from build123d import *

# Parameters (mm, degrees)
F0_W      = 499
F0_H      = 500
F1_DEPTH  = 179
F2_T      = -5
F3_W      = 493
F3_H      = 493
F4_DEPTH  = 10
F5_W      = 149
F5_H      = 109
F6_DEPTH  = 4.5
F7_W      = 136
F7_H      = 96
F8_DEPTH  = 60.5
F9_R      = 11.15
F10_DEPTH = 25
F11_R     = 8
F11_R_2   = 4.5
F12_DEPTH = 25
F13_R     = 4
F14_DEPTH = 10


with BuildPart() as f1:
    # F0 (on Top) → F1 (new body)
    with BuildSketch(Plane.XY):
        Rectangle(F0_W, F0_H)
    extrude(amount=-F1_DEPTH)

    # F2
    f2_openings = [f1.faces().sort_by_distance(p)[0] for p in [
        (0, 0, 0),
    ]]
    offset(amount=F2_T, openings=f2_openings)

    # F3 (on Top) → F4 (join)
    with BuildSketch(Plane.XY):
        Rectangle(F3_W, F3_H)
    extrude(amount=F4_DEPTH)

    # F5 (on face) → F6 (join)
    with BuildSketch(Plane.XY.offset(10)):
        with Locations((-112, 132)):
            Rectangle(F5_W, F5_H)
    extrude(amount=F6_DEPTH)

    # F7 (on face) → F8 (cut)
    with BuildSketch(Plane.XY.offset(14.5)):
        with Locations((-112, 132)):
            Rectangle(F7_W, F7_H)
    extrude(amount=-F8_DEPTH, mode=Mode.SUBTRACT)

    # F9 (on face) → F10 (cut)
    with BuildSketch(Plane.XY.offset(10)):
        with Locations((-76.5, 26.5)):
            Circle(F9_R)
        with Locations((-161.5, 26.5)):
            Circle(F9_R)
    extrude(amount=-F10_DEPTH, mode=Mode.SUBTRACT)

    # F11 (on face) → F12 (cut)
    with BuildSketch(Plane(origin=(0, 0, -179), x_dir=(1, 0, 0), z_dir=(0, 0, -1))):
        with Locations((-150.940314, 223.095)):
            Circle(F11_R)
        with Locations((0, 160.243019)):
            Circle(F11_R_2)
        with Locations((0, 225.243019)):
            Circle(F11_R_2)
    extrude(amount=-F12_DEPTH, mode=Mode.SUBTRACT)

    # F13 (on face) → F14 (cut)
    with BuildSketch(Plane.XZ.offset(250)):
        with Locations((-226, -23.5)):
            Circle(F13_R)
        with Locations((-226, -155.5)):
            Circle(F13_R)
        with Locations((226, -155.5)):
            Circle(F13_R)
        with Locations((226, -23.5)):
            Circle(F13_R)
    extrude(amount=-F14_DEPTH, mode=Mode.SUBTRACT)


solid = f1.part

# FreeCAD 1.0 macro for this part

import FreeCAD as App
import Part
import Sketcher

V = App.Vector
Q = App.Units.Quantity


def faces_at(feature, points):
    """Names of the faces that lie closest to the given points."""
    faces = feature.Shape.Faces
    near = lambda p: min(range(len(faces)), key=lambda i: faces[i].distToShape(Part.Vertex(*p))[0])
    return sorted({f"Face{near(p) + 1}" for p in points})

doc = App.newDocument("Part")
body = doc.addObject("PartDesign::Body", "Body")

# Sketch on XY plane
sketch1 = body.newObject("Sketcher::SketchObject", "Sketch")
sketch1.AttachmentSupport = (doc.getObject("XY_Plane"), [""])
sketch1.MapMode = "FlatFace"
sketch1.addGeometry(Part.LineSegment(V(-250, 250, 0), V(-250, -250, 0)), False)
sketch1.addGeometry(Part.LineSegment(V(-250, -250, 0), V(250, -250, 0)), False)
sketch1.addGeometry(Part.LineSegment(V(250, -250, 0), V(250, 250, 0)), False)
sketch1.addGeometry(Part.LineSegment(V(250, 250, 0), V(-250, 250, 0)), False)
sketch1.addConstraint(Sketcher.Constraint("Coincident", 0, 2, 1, 1))
sketch1.addConstraint(Sketcher.Constraint("Coincident", 1, 2, 2, 1))
sketch1.addConstraint(Sketcher.Constraint("Coincident", 2, 2, 3, 1))
sketch1.addConstraint(Sketcher.Constraint("Coincident", 3, 2, 0, 1))
sketch1.addConstraint(Sketcher.Constraint("Vertical", 0))
sketch1.addConstraint(Sketcher.Constraint("Horizontal", 1))
sketch1.addConstraint(Sketcher.Constraint("Vertical", 2))
sketch1.addConstraint(Sketcher.Constraint("Horizontal", 3))
sketch1.addConstraint(Sketcher.Constraint("Symmetric", 0, 2, 2, 2, -1, 1))
sketch1.addConstraint(Sketcher.Constraint("DistanceX", 1, 1, 1, 2, Q("499 mm")))
sketch1.addConstraint(Sketcher.Constraint("DistanceY", 0, 2, 0, 1, Q("500 mm")))
pad1 = body.newObject("PartDesign::Pad", "Pad")
pad1.Profile = sketch1
pad1.Length = 179
pad1.Reversed = True
doc.recompute()

thickness = body.newObject("PartDesign::Thickness", "Thickness")
thickness.Base = (pad1, faces_at(pad1, [(0, 0, 0)]))
thickness.Value = 5
thickness.Reversed = True
thickness.Join = "Arc"

# Sketch on XY plane
sketch2 = body.newObject("Sketcher::SketchObject", "Sketch001")
sketch2.AttachmentSupport = (doc.getObject("XY_Plane"), [""])
sketch2.MapMode = "FlatFace"
sketch2.addGeometry(Part.LineSegment(V(-246, 246, 0), V(-246, -246, 0)), False)
sketch2.addGeometry(Part.LineSegment(V(-246, -246, 0), V(246, -246, 0)), False)
sketch2.addGeometry(Part.LineSegment(V(246, -246, 0), V(246, 246, 0)), False)
sketch2.addGeometry(Part.LineSegment(V(246, 246, 0), V(-246, 246, 0)), False)
sketch2.addConstraint(Sketcher.Constraint("Coincident", 0, 2, 1, 1))
sketch2.addConstraint(Sketcher.Constraint("Coincident", 1, 2, 2, 1))
sketch2.addConstraint(Sketcher.Constraint("Coincident", 2, 2, 3, 1))
sketch2.addConstraint(Sketcher.Constraint("Coincident", 3, 2, 0, 1))
sketch2.addConstraint(Sketcher.Constraint("Vertical", 0))
sketch2.addConstraint(Sketcher.Constraint("Horizontal", 1))
sketch2.addConstraint(Sketcher.Constraint("Vertical", 2))
sketch2.addConstraint(Sketcher.Constraint("Horizontal", 3))
sketch2.addConstraint(Sketcher.Constraint("Symmetric", 0, 2, 2, 2, -1, 1))
sketch2.addConstraint(Sketcher.Constraint("Equal", 3, 0))
sketch2.addConstraint(Sketcher.Constraint("DistanceX", 1, 1, 1, 2, Q("493 mm")))
pad2 = body.newObject("PartDesign::Pad", "Pad001")
pad2.Profile = sketch2
pad2.Length = 10

# Sketch on XY plane
sketch3 = body.newObject("Sketcher::SketchObject", "Sketch002")
sketch3.AttachmentSupport = (doc.getObject("XY_Plane"), [""])
sketch3.MapMode = "FlatFace"
sketch3.AttachmentOffset = App.Placement(V(0, 0, 10), App.Rotation())
sketch3.addGeometry(Part.LineSegment(V(-186, 186, 0), V(-186, 78, 0)), False)
sketch3.addGeometry(Part.LineSegment(V(-186, 78, 0), V(-38, 78, 0)), False)
sketch3.addGeometry(Part.LineSegment(V(-38, 78, 0), V(-38, 186, 0)), False)
sketch3.addGeometry(Part.LineSegment(V(-38, 186, 0), V(-186, 186, 0)), False)
sketch3.addConstraint(Sketcher.Constraint("Coincident", 0, 2, 1, 1))
sketch3.addConstraint(Sketcher.Constraint("Coincident", 1, 2, 2, 1))
sketch3.addConstraint(Sketcher.Constraint("Coincident", 2, 2, 3, 1))
sketch3.addConstraint(Sketcher.Constraint("Coincident", 3, 2, 0, 1))
sketch3.addConstraint(Sketcher.Constraint("Vertical", 0))
sketch3.addConstraint(Sketcher.Constraint("Horizontal", 1))
sketch3.addConstraint(Sketcher.Constraint("Vertical", 2))
sketch3.addConstraint(Sketcher.Constraint("Horizontal", 3))
sketch3.addConstraint(Sketcher.Constraint("DistanceX", 1, 1, 1, 2, Q("149 mm")))
sketch3.addConstraint(Sketcher.Constraint("DistanceY", 0, 2, 0, 1, Q("109 mm")))
sketch3.addConstraint(Sketcher.Constraint("DistanceX", 0, 2, -1, 1, Q("186.5 mm")))
sketch3.addConstraint(Sketcher.Constraint("DistanceY", -1, 1, 0, 2, Q("77.5 mm")))
pad3 = body.newObject("PartDesign::Pad", "Pad002")
pad3.Profile = sketch3
pad3.Length = 4.5

# Sketch on XY plane
sketch4 = body.newObject("Sketcher::SketchObject", "Sketch003")
sketch4.AttachmentSupport = (doc.getObject("XY_Plane"), [""])
sketch4.MapMode = "FlatFace"
sketch4.AttachmentOffset = App.Placement(V(0, 0, 14.5), App.Rotation())
sketch4.addGeometry(Part.LineSegment(V(-180, 180, 0), V(-180, 84, 0)), False)
sketch4.addGeometry(Part.LineSegment(V(-180, 84, 0), V(-44, 84, 0)), False)
sketch4.addGeometry(Part.LineSegment(V(-44, 84, 0), V(-44, 180, 0)), False)
sketch4.addGeometry(Part.LineSegment(V(-44, 180, 0), V(-180, 180, 0)), False)
sketch4.addConstraint(Sketcher.Constraint("Coincident", 0, 2, 1, 1))
sketch4.addConstraint(Sketcher.Constraint("Coincident", 1, 2, 2, 1))
sketch4.addConstraint(Sketcher.Constraint("Coincident", 2, 2, 3, 1))
sketch4.addConstraint(Sketcher.Constraint("Coincident", 3, 2, 0, 1))
sketch4.addConstraint(Sketcher.Constraint("Vertical", 0))
sketch4.addConstraint(Sketcher.Constraint("Horizontal", 1))
sketch4.addConstraint(Sketcher.Constraint("Vertical", 2))
sketch4.addConstraint(Sketcher.Constraint("Horizontal", 3))
sketch4.addConstraint(Sketcher.Constraint("DistanceX", 1, 1, 1, 2, Q("136 mm")))
sketch4.addConstraint(Sketcher.Constraint("DistanceY", 0, 2, 0, 1, Q("96 mm")))
sketch4.addConstraint(Sketcher.Constraint("DistanceX", 0, 2, -1, 1, Q("180 mm")))
sketch4.addConstraint(Sketcher.Constraint("DistanceY", -1, 1, 0, 2, Q("84 mm")))
pocket1 = body.newObject("PartDesign::Pocket", "Pocket")
pocket1.Profile = sketch4
pocket1.Length = 60.5

# Sketch on XY plane
sketch5 = body.newObject("Sketcher::SketchObject", "Sketch004")
sketch5.AttachmentSupport = (doc.getObject("XY_Plane"), [""])
sketch5.MapMode = "FlatFace"
sketch5.AttachmentOffset = App.Placement(V(0, 0, 10), App.Rotation())
sketch5.addGeometry(Part.Circle(V(-76, 26, 0), V(0, 0, 1), 11), False)
sketch5.addGeometry(Part.Circle(V(-162, 26, 0), V(0, 0, 1), 11), False)
sketch5.addConstraint(Sketcher.Constraint("Equal", 0, 1))
sketch5.addConstraint(Sketcher.Constraint("Horizontal", 0, 3, 1, 3))
sketch5.addConstraint(Sketcher.Constraint("Diameter", 0, Q("22.3 mm")))
sketch5.addConstraint(Sketcher.Constraint("DistanceX", 1, 3, 0, 3, Q("85 mm")))
sketch5.addConstraint(Sketcher.Constraint("DistanceX", 0, 3, -1, 1, Q("76.5 mm")))
sketch5.addConstraint(Sketcher.Constraint("DistanceY", -1, 1, 0, 3, Q("26.5 mm")))
pocket2 = body.newObject("PartDesign::Pocket", "Pocket001")
pocket2.Profile = sketch5
pocket2.Length = 25

# Sketch on XY plane
sketch6 = body.newObject("Sketcher::SketchObject", "Sketch005")
sketch6.AttachmentSupport = (doc.getObject("XY_Plane"), [""])
sketch6.MapMode = "FlatFace"
sketch6.AttachmentOffset = App.Placement(V(0, 0, -179), App.Rotation())
sketch6.addGeometry(Part.Circle(V(-150.9, -223.1, 0), V(0, 0, 1), 8), False)
sketch6.addGeometry(Part.Circle(V(0, -160.2, 0), V(0, 0, 1), 4.5), False)
sketch6.addGeometry(Part.Circle(V(0, -225.2, 0), V(0, 0, 1), 4.5), False)
sketch6.addConstraint(Sketcher.Constraint("Equal", 1, 2))
sketch6.addConstraint(Sketcher.Constraint("PointOnObject", 1, 3, -2))
sketch6.addConstraint(Sketcher.Constraint("PointOnObject", 2, 3, -2))
sketch6.addConstraint(Sketcher.Constraint("Diameter", 0, Q("16 mm")))
sketch6.addConstraint(Sketcher.Constraint("Diameter", 1, Q("9 mm")))
sketch6.addConstraint(Sketcher.Constraint("DistanceY", 2, 3, 1, 3, Q("65 mm")))
sketch6.addConstraint(Sketcher.Constraint("DistanceY", 0, 3, -1, 1, Q("223.095 mm")))
sketch6.addConstraint(Sketcher.Constraint("DistanceY", 1, 3, -1, 1, Q("160.243019 mm")))
sketch6.addConstraint(Sketcher.Constraint("DistanceX", 0, 3, -1, 1, Q("150.940314 mm")))
pocket3 = body.newObject("PartDesign::Pocket", "Pocket002")
pocket3.Profile = sketch6
pocket3.Length = 25
pocket3.Reversed = True

# Sketch on XZ plane
sketch7 = body.newObject("Sketcher::SketchObject", "Sketch006")
sketch7.AttachmentSupport = (doc.getObject("XZ_Plane"), [""])
sketch7.MapMode = "FlatFace"
sketch7.AttachmentOffset = App.Placement(V(0, 0, 250), App.Rotation())
sketch7.addGeometry(Part.Circle(V(-226, -23.5, 0), V(0, 0, 1), 4), False)
sketch7.addGeometry(Part.Circle(V(-226, -155.5, 0), V(0, 0, 1), 4), False)
sketch7.addGeometry(Part.Circle(V(226, -155.5, 0), V(0, 0, 1), 4), False)
sketch7.addGeometry(Part.Circle(V(226, -23.5, 0), V(0, 0, 1), 4), False)
sketch7.addConstraint(Sketcher.Constraint("Equal", 0, 1))
sketch7.addConstraint(Sketcher.Constraint("Equal", 1, 2))
sketch7.addConstraint(Sketcher.Constraint("Equal", 2, 3))
sketch7.addConstraint(Sketcher.Constraint("Symmetric", 1, 3, 2, 3, -2))
sketch7.addConstraint(Sketcher.Constraint("Symmetric", 0, 3, 3, 3, -2))
sketch7.addConstraint(Sketcher.Constraint("Vertical", 0, 3, 1, 3))
sketch7.addConstraint(Sketcher.Constraint("Diameter", 0, Q("8 mm")))
sketch7.addConstraint(Sketcher.Constraint("DistanceX", 0, 3, -1, 1, Q("226 mm")))
sketch7.addConstraint(Sketcher.Constraint("DistanceY", 1, 3, 0, 3, Q("132 mm")))
sketch7.addConstraint(Sketcher.Constraint("DistanceY", 0, 3, -1, 1, Q("23.5 mm")))
pocket4 = body.newObject("PartDesign::Pocket", "Pocket003")
pocket4.Profile = sketch7
pocket4.Length = 10

doc.recompute()
